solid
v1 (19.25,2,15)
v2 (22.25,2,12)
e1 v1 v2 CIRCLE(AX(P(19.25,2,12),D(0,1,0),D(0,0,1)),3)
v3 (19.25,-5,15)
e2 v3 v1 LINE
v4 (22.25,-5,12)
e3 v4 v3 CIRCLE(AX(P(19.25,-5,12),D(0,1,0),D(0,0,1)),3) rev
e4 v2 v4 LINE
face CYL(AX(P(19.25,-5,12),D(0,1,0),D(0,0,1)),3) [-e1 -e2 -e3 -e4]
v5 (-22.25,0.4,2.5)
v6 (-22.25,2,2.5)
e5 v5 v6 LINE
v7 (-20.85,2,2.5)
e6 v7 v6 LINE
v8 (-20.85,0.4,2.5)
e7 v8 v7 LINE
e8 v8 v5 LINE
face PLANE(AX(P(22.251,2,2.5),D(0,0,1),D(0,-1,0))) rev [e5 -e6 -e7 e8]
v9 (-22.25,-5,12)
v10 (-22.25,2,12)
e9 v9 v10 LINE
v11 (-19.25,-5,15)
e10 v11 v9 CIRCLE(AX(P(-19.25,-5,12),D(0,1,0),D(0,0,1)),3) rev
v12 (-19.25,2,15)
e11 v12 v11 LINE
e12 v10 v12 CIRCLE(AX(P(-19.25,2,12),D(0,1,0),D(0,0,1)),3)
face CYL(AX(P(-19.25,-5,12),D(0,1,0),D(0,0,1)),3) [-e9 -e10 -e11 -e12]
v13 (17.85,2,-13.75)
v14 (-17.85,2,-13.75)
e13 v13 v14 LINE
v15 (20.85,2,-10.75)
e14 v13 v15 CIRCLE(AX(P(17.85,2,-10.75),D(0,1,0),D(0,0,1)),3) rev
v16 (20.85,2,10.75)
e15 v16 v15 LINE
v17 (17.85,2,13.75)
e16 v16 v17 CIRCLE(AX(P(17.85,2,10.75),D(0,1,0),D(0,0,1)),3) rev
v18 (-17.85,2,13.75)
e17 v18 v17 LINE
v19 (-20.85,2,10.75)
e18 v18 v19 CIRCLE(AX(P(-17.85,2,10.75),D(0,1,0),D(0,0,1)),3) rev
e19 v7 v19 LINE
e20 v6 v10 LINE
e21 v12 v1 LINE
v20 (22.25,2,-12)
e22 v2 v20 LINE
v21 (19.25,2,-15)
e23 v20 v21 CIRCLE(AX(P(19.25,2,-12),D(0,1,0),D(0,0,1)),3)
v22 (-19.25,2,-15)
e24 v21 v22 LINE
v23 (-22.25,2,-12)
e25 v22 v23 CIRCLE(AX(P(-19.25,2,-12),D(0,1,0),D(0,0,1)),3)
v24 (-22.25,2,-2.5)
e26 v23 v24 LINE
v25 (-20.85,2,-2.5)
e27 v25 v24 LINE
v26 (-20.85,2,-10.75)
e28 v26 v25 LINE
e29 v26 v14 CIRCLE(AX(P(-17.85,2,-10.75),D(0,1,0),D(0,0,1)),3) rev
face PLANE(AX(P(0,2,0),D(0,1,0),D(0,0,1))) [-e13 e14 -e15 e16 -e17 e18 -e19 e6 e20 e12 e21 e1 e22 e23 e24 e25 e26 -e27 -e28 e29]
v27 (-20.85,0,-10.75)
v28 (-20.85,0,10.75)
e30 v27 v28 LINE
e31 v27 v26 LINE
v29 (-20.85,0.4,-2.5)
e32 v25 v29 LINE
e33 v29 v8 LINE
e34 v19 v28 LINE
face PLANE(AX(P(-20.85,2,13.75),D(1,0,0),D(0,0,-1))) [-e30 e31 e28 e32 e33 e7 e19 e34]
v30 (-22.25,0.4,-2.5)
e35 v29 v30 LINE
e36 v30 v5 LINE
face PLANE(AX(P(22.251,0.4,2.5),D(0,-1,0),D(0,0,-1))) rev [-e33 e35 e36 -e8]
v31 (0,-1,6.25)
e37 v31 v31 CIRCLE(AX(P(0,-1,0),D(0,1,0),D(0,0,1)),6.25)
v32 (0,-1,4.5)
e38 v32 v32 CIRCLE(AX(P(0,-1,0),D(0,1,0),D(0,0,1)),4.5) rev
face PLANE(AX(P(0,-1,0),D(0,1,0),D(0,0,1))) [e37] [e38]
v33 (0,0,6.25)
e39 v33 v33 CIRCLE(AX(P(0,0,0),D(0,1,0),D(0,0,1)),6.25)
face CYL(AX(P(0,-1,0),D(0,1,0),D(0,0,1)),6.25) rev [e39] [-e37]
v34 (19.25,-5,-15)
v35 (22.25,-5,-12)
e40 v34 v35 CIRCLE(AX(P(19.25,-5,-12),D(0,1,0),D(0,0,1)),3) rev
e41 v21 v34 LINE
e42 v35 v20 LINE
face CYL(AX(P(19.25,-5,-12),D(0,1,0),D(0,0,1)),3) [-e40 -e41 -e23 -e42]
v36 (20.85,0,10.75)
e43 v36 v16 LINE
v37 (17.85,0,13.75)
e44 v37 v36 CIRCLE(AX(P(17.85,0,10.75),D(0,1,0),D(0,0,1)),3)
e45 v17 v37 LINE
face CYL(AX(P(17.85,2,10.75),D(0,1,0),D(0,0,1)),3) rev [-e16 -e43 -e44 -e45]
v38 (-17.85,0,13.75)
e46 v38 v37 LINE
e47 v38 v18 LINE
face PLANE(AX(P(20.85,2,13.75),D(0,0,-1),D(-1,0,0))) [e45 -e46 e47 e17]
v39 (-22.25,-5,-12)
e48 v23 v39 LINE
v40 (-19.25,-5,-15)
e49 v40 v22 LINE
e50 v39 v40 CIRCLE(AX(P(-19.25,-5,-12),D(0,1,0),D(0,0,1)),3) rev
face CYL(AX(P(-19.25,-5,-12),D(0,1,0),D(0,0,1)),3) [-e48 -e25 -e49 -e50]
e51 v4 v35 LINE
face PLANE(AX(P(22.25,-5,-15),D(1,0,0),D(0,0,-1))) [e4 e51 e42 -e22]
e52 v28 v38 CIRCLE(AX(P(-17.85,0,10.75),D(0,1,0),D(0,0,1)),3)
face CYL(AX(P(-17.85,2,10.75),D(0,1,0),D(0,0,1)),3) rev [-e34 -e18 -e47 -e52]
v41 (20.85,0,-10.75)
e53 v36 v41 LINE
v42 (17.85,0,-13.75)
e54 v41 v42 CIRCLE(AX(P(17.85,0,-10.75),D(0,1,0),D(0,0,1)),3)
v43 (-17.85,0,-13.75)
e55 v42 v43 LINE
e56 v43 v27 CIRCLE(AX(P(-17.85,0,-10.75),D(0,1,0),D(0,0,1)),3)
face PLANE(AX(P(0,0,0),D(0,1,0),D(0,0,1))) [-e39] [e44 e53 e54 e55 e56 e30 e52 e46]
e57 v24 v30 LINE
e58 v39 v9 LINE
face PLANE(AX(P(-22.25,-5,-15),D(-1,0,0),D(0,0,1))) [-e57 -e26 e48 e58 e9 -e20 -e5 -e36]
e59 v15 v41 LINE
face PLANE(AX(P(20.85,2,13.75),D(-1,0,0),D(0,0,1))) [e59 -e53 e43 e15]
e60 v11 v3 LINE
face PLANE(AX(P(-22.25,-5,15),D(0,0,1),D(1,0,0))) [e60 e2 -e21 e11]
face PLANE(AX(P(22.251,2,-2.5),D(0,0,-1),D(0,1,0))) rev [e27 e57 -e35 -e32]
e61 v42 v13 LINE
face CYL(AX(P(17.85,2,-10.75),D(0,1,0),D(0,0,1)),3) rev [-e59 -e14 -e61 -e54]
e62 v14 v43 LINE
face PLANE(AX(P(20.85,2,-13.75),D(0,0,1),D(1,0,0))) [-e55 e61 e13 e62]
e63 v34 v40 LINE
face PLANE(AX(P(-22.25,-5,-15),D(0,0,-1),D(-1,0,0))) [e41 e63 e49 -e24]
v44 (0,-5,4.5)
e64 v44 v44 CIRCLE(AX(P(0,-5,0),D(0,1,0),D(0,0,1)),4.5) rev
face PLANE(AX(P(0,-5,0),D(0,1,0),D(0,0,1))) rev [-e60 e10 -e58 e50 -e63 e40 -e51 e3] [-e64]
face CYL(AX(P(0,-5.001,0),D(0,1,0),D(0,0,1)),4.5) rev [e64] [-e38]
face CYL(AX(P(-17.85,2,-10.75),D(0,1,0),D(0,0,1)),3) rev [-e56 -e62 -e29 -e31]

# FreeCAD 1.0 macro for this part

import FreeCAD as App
import Part
import Sketcher


def edges_at(feature, points):
    """Names of the edges that pass closest to the given points."""
    edges = feature.Shape.Edges
    near = lambda p: min(range(len(edges)), key=lambda i: edges[i].distToShape(Part.Vertex(*p))[0])
    return sorted({f"Edge{near(p) + 1}" for p in points})


def add_polygon(sketch, points):
    """Adds a closed chain of lines whose ends are joined by coincident constraints."""
    first, n = sketch.GeometryCount, len(points)
    for a, b in zip(points, points[1:] + points[:1]):
        sketch.addGeometry(Part.LineSegment(App.Vector(*a, 0), App.Vector(*b, 0)), False)
    for i in range(n):
        sketch.addConstraint(Sketcher.Constraint("Coincident", first + i, 2, first + (i + 1) % n, 1))

doc = App.newDocument("Part")
params = doc.addObject("Spreadsheet::Sheet", "Params")
for row, (alias, value) in enumerate([
    ("sketch1_height", "30 mm"),
    ("sketch1_width", "44.5 mm"),
    ("pad1_length", "5 mm"),
    ("sketch2_diameter", "9 mm"),
    ("sketch3_height", "30 mm"),
    ("sketch3_width", "44.5 mm"),
    ("sketch3_width2", "41.7 mm"),
    ("sketch3_height2", "27.5 mm"),
    ("pad2_length", "2 mm"),
    ("sketch4_height", "5 mm"),
    ("sketch4_width", "1.6 mm"),
    ("fillet_radius", "3 mm"),
    ("sketch5_diameter", "12.5 mm"),
    ("pocket3_length", "1 mm"),
], start=1):
    params.set(f"A{row}", alias)
    params.set(f"B{row}", "=" + value)
    params.setAlias(f"B{row}", alias)

body = doc.addObject("PartDesign::Body", "Body")

# Sketch on XZ plane
sketch1 = body.newObject("Sketcher::SketchObject", "Sketch")
sketch1.AttachmentSupport = (doc.getObject("XZ_Plane"), [""])
sketch1.MapMode = "FlatFace"
add_polygon(sketch1, [(-22, -15), (-22, 15), (22, 15), (22, -15)])  # lines 0-3
sketch1.addConstraint([
    Sketcher.Constraint("Vertical", 0),
    Sketcher.Constraint("Horizontal", 1),
    Sketcher.Constraint("Vertical", 2),
    Sketcher.Constraint("Horizontal", 3),
    Sketcher.Constraint("Symmetric", 0, 2, 2, 2, -1, 1),
    Sketcher.Constraint("DistanceY", 0, 1, 0, 2, 30.0),
    Sketcher.Constraint("DistanceX", 1, 1, 1, 2, 44.5),
])
sketch1.setExpression("Constraints[9]", "Params.sketch1_height")
sketch1.setExpression("Constraints[10]", "Params.sketch1_width")
pad1 = body.newObject("PartDesign::Pad", "Pad")
pad1.Profile = sketch1
pad1.setExpression("Length", "Params.pad1_length")

# Sketch on XZ plane
sketch2 = body.newObject("Sketcher::SketchObject", "Sketch001")
sketch2.AttachmentSupport = (doc.getObject("XZ_Plane"), [""])
sketch2.MapMode = "FlatFace"
sketch2.addGeometry(Part.Circle(App.Vector(0, 0, 0), App.Vector(0, 0, 1), 4.5), False)
sketch2.addConstraint([
    Sketcher.Constraint("Coincident", 0, 3, -1, 1),
    Sketcher.Constraint("Diameter", 0, 9.0),
])
sketch2.setExpression("Constraints[1]", "Params.sketch2_diameter")
pocket1 = body.newObject("PartDesign::Pocket", "Pocket")
pocket1.Profile = sketch2
pocket1.Type = "UpToFirst"
pocket1.Reversed = True

# Sketch on XZ plane
sketch3 = body.newObject("Sketcher::SketchObject", "Sketch002")
sketch3.AttachmentSupport = (doc.getObject("XZ_Plane"), [""])
sketch3.MapMode = "FlatFace"
add_polygon(sketch3, [(-22, -15), (-22, 15), (22, 15), (22, -15)])  # lines 0-3
add_polygon(sketch3, [(21, 14), (-21, 14), (-21, -14), (21, -14)])  # lines 4-7
sketch3.addConstraint([
    Sketcher.Constraint("Vertical", 0),
    Sketcher.Constraint("Horizontal", 1),
    Sketcher.Constraint("Vertical", 2),
    Sketcher.Constraint("Horizontal", 3),
    Sketcher.Constraint("Horizontal", 4),
    Sketcher.Constraint("Vertical", 5),
    Sketcher.Constraint("Horizontal", 6),
    Sketcher.Constraint("Vertical", 7),
    Sketcher.Constraint("Symmetric", 0, 2, 2, 2, -1, 1),
    Sketcher.Constraint("Symmetric", 4, 2, 6, 2, -1, 1),
    Sketcher.Constraint("DistanceY", 0, 1, 0, 2, 30.0),
    Sketcher.Constraint("DistanceX", 1, 1, 1, 2, 44.5),
    Sketcher.Constraint("DistanceX", 4, 2, 4, 1, 41.7),
    Sketcher.Constraint("DistanceY", 5, 2, 5, 1, 27.5),
])
sketch3.setExpression("Constraints[18]", "Params.sketch3_height")
sketch3.setExpression("Constraints[19]", "Params.sketch3_width")
sketch3.setExpression("Constraints[20]", "Params.sketch3_width2")
sketch3.setExpression("Constraints[21]", "Params.sketch3_height2")
pad2 = body.newObject("PartDesign::Pad", "Pad001")
pad2.Profile = sketch3
pad2.setExpression("Length", "Params.pad2_length")
pad2.Reversed = True

# Sketch on YZ plane
sketch4 = body.newObject("Sketcher::SketchObject", "Sketch003")
sketch4.AttachmentSupport = (doc.getObject("YZ_Plane"), [""])
sketch4.MapMode = "FlatFace"
sketch4.AttachmentOffset = App.Placement(App.Vector(0, 0, -22.25), App.Rotation())
add_polygon(sketch4, [(2, -2.5), (0.4, -2.5), (0.4, 2.5), (2, 2.5)])  # lines 0-3
sketch4.addConstraint([
    Sketcher.Constraint("Horizontal", 0),
    Sketcher.Constraint("Vertical", 1),
    Sketcher.Constraint("Horizontal", 2),
    Sketcher.Constraint("Vertical", 3),
    Sketcher.Constraint("DistanceY", 1, 1, 1, 2, 5.0),
    Sketcher.Constraint("DistanceX", 0, 2, 0, 1, 1.6),
    Sketcher.Constraint("DistanceX", -1, 1, 2, 2, 2.0),
    Sketcher.Constraint("DistanceY", 0, 2, -1, 1, 2.5),
])
sketch4.setExpression("Constraints[8]", "Params.sketch4_height")
sketch4.setExpression("Constraints[9]", "Params.sketch4_width")
pocket2 = body.newObject("PartDesign::Pocket", "Pocket001")
pocket2.Profile = sketch4
pocket2.Type = "UpToFirst"
pocket2.Reversed = True
doc.recompute()

fillet = body.newObject("PartDesign::Fillet", "Fillet")
fillet.Base = (pocket2, edges_at(pocket2, [
    (-20.85, 1, 13.75),
    (20.85, 1, 13.75),
    (20.85, 1, -13.75),
    (-20.85, 1, -13.75),
    (22.25, -1.5, 15),
    (-22.25, -1.5, 15),
    (-22.25, -1.5, -15),
    (22.25, -1.5, -15),
]))
fillet.setExpression("Radius", "Params.fillet_radius")

# Sketch on XZ plane
sketch5 = body.newObject("Sketcher::SketchObject", "Sketch004")
sketch5.AttachmentSupport = (doc.getObject("XZ_Plane"), [""])
sketch5.MapMode = "FlatFace"
sketch5.addGeometry(Part.Circle(App.Vector(0, 0, 0), App.Vector(0, 0, 1), 6), False)
sketch5.addConstraint([
    Sketcher.Constraint("Coincident", 0, 3, -1, 1),
    Sketcher.Constraint("Diameter", 0, 12.5),
])
sketch5.setExpression("Constraints[1]", "Params.sketch5_diameter")
pocket3 = body.newObject("PartDesign::Pocket", "Pocket002")
pocket3.Profile = sketch5
pocket3.setExpression("Length", "Params.pocket3_length")
pocket3.Reversed = True

doc.recompute()
